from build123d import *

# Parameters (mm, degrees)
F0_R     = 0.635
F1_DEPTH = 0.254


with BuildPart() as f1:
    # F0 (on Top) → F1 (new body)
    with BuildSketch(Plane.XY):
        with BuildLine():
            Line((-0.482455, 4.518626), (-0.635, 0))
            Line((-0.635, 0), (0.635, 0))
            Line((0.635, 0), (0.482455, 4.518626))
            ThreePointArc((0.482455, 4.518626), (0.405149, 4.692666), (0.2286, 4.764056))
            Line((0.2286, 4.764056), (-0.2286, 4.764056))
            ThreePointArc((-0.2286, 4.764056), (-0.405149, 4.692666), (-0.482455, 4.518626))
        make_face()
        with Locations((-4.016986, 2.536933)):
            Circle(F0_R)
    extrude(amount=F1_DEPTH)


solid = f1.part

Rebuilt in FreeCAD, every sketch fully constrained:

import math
import FreeCAD as App
import Part
import Sketcher

V = App.Vector
Q = App.Units.Quantity

doc = App.newDocument("Part")
params = doc.addObject("Spreadsheet::Sheet", "Params")
for row, (alias, value) in enumerate([
    ("sketch1_diameter", "0.05 in"),
    ("sketch1_radius", "0.01 in"),
    ("sketch1_width", "0.05 in"),
    ("sketch1_width2", "0.018 in"),
    ("sketch1_length", "0.178 in"),
    ("pad1_length", "0.01 in"),
], start=1):
    params.set(f"A{row}", alias)
    params.set(f"B{row}", "=" + value)
    params.setAlias(f"B{row}", alias)

body = doc.addObject("PartDesign::Body", "Body")
body.AllowCompound = True

sketch1 = doc.addObject("Sketcher::SketchObject", "Sketch")
body.addObject(sketch1)
sketch1.AttachmentSupport = (doc.XY_Plane, [""])
sketch1.MapMode = "FlatFace"
sketch1.addGeometry([
    Part.LineSegment(V(-0.482455, 4.518626, 0), V(-0.635, 0, 0)),
    Part.LineSegment(V(-0.635, 0, 0), V(0.635, 0, 0)),
    Part.LineSegment(V(0.635, 0, 0), V(0.482455, 4.518626, 0)),
    Part.ArcOfCircle(Part.Circle(V(0.2286, 4.510056, 0), V(0, 0, 1), 0.254), math.radians(1.93343), math.radians(90.00002)),
    Part.LineSegment(V(0.2286, 4.764056, 0), V(-0.2286, 4.764056, 0)),
    Part.ArcOfCircle(Part.Circle(V(-0.2286, 4.510056, 0), V(0, 0, 1), 0.254), math.radians(89.99998), math.radians(178.06657)),
    Part.Circle(V(-4.016986, 2.536933, 0), V(0, 0, 1), 0.635),
], False)
sketch1.addConstraint([
    Sketcher.Constraint("Coincident", 0, 2, 1, 1),
    Sketcher.Constraint("Coincident", 1, 2, 2, 1),
    Sketcher.Constraint("Tangent", 2, 2, 3, 1),
    Sketcher.Constraint("Tangent", 3, 2, 4, 1),
    Sketcher.Constraint("Tangent", 4, 2, 5, 1),
    Sketcher.Constraint("Tangent", 5, 2, 0, 1),
    Sketcher.Constraint("Horizontal", 1),
    Sketcher.Constraint("Horizontal", 4),
    Sketcher.Constraint("Equal", 3, 5),
    Sketcher.Constraint("Symmetric", 0, 2, 1, 2, -1, 1),
    Sketcher.Constraint("Horizontal", 2, 2, 5, 2),
    Sketcher.Constraint("Diameter", 6, Q("0.05 in")),
    Sketcher.Constraint("Radius", 3, Q("0.01 in")),
    Sketcher.Constraint("DistanceX", 1, 1, 1, 2, Q("0.05 in")),
    Sketcher.Constraint("DistanceX", 4, 2, 4, 1, Q("0.018 in")),
    Sketcher.Constraint("Distance", 0, Q("0.178 in")),
    Sketcher.Constraint("DistanceX", 6, 3, 2, 2, Q("4.499441 mm")),
    Sketcher.Constraint("DistanceY", -1, 1, 6, 3, Q("2.536933 mm")),
])
sketch1.setExpression("Constraints[11]", "Params.sketch1_diameter")
sketch1.setExpression("Constraints[12]", "Params.sketch1_radius")
sketch1.setExpression("Constraints[13]", "Params.sketch1_width")
sketch1.setExpression("Constraints[14]", "Params.sketch1_width2")
sketch1.setExpression("Constraints[15]", "Params.sketch1_length")
pad1 = doc.addObject("PartDesign::Pad", "Pad")
body.addObject(pad1)
pad1.Profile = sketch1
pad1.setExpression("Length", "Params.pad1_length")

doc.recompute()
